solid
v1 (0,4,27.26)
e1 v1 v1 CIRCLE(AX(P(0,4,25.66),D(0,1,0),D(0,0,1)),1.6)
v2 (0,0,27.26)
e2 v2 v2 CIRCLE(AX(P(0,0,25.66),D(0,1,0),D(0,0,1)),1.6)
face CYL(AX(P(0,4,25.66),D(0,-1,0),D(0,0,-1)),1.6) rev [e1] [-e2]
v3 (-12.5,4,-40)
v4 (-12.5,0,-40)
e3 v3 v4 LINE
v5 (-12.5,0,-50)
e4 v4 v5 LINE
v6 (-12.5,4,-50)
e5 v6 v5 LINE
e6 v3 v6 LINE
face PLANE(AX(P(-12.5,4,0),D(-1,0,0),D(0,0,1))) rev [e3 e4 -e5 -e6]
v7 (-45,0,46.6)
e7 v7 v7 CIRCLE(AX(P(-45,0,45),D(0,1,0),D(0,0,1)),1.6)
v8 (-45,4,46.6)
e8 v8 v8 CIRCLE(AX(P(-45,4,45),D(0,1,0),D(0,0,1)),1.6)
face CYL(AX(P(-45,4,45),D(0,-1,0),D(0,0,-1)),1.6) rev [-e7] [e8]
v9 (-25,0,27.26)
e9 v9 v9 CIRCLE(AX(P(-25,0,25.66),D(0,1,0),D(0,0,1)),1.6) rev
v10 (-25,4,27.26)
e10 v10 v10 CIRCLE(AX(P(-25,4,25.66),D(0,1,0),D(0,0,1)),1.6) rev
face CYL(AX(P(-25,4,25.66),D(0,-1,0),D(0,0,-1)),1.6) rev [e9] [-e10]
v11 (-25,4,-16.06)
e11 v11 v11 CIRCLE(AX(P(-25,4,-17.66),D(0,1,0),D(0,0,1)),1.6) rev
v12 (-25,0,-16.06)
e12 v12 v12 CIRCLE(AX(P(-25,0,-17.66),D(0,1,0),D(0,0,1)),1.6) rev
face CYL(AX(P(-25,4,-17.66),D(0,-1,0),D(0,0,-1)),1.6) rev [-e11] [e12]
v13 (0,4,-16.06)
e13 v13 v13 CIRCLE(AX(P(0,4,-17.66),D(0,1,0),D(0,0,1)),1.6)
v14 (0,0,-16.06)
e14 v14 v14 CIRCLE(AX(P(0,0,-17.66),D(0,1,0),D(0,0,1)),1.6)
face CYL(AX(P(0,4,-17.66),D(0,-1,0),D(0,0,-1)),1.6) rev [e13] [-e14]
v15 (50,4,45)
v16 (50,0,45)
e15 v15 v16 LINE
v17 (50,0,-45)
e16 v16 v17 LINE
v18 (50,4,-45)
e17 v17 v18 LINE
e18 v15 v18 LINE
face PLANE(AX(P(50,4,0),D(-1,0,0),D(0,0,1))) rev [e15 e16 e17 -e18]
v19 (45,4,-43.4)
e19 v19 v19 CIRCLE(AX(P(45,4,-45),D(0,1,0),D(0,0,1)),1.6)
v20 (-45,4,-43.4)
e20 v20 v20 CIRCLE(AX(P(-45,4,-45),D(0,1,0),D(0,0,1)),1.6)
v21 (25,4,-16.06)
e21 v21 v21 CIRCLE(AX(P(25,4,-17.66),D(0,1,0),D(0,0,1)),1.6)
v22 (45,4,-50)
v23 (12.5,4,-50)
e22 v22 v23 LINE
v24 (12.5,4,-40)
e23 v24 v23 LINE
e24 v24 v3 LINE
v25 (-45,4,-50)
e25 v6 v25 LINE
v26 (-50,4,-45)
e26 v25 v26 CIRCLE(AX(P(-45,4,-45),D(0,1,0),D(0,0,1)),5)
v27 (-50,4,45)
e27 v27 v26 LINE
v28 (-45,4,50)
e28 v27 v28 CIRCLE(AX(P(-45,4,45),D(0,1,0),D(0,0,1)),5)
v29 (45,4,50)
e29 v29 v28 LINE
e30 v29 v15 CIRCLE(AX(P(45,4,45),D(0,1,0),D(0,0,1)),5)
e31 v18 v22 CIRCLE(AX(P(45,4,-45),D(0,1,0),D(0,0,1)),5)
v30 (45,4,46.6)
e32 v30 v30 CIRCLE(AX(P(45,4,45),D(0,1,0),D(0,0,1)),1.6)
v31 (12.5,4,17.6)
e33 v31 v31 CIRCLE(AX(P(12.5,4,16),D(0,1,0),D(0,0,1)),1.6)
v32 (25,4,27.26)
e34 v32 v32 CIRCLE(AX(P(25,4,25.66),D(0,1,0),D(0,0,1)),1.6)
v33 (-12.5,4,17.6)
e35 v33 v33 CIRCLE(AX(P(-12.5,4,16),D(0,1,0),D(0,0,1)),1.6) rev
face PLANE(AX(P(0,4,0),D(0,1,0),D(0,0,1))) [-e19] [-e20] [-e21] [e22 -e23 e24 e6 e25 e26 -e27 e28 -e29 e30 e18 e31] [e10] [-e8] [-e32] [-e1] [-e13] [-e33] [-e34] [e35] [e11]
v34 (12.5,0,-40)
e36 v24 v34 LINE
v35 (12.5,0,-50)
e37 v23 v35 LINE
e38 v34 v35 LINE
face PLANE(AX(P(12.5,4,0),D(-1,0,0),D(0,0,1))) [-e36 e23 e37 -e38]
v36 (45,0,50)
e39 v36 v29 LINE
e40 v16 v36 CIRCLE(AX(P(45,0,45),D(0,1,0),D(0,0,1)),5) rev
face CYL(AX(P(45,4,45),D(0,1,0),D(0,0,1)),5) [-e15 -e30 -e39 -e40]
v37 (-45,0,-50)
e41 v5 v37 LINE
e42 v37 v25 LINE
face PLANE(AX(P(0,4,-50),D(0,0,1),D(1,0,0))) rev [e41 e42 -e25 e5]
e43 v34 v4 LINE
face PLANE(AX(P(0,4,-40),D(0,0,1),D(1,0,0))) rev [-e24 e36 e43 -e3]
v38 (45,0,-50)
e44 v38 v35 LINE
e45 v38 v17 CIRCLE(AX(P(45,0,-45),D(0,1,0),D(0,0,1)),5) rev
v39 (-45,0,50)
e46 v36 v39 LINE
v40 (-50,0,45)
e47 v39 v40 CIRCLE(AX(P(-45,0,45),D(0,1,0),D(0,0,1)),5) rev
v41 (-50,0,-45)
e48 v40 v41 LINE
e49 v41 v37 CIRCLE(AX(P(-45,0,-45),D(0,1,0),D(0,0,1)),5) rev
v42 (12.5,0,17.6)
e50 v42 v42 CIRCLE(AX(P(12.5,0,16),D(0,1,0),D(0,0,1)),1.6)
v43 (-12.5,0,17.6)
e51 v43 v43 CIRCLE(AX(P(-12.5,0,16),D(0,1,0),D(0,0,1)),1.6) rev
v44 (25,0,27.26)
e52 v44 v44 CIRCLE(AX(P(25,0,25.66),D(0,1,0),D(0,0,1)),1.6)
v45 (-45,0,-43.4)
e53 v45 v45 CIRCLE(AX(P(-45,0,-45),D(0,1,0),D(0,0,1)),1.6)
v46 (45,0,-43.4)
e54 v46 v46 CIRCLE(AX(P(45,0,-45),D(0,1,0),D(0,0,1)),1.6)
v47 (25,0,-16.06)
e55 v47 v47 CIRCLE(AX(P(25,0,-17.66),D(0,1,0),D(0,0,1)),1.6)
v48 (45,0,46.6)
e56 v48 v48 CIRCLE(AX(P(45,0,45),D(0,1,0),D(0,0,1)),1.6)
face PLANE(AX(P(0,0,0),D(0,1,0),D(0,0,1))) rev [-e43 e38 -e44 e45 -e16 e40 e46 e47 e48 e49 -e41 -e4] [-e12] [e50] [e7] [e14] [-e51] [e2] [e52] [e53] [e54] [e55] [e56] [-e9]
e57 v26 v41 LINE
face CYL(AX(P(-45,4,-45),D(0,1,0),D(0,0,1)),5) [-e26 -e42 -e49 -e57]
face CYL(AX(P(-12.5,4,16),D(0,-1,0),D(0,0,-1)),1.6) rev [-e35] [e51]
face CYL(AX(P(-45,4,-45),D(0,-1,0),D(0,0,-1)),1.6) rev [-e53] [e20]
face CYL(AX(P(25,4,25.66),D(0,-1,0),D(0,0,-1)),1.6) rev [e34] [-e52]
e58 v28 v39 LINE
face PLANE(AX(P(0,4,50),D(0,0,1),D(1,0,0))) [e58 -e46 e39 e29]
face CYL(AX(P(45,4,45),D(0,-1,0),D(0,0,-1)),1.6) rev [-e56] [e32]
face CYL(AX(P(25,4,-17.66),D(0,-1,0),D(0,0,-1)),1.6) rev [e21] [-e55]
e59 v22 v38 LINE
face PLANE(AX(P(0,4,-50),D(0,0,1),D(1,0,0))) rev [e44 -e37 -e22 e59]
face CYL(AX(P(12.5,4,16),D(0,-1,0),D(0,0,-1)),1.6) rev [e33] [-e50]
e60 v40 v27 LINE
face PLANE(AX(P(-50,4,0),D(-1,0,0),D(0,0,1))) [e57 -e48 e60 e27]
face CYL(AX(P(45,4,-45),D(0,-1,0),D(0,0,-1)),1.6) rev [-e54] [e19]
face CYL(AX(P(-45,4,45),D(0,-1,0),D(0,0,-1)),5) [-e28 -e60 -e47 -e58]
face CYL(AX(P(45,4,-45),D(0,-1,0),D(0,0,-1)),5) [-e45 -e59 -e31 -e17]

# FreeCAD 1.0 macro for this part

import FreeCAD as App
import Part
import Sketcher
Q = App.Units.Quantity


def edges_at(feature, points):
    """Names of the edges that pass closest to the given points."""
    edges = feature.Shape.Edges
    near = lambda p: min(range(len(edges)), key=lambda i: edges[i].distToShape(Part.Vertex(*p))[0])
    return sorted({f"Edge{near(p) + 1}" for p in points})

doc = App.newDocument("Part")
body = doc.addObject("PartDesign::Body", "Body")

# Sketch on XZ plane
sketch1 = body.newObject("Sketcher::SketchObject", "Sketch")
sketch1.AttachmentSupport = (doc.getObject("XZ_Plane"), [""])
sketch1.MapMode = "FlatFace"
sketch1.addGeometry([
    Part.LineSegment(App.Vector(-50, 50, 0), App.Vector(50, 50, 0)),  # 0
    Part.LineSegment(App.Vector(50, 50, 0), App.Vector(50, -50, 0)),  # 1
    Part.LineSegment(App.Vector(50, -50, 0), App.Vector(12.5, -50, 0)),  # 2
    Part.LineSegment(App.Vector(12.5, -50, 0), App.Vector(12.5, -40, 0)),  # 3
    Part.LineSegment(App.Vector(12.5, -40, 0), App.Vector(-12.5, -40, 0)),  # 4
    Part.LineSegment(App.Vector(-12.5, -40, 0), App.Vector(-12.5, -50, 0)),  # 5
    Part.LineSegment(App.Vector(-12.5, -50, 0), App.Vector(-50, -50, 0)),  # 6
    Part.LineSegment(App.Vector(-50, -50, 0), App.Vector(-50, 50, 0)),  # 7
    Part.Circle(App.Vector(-45, 45, 0), App.Vector(0, 0, 1), 1.6),  # 8
    Part.Circle(App.Vector(-25, 25.66, 0), App.Vector(0, 0, 1), 1.6),  # 9
    Part.Circle(App.Vector(-12.5, 16, 0), App.Vector(0, 0, 1), 1.6),  # 10
    Part.Circle(App.Vector(0, 25.66, 0), App.Vector(0, 0, 1), 1.6),  # 11
    Part.Circle(App.Vector(45, 45, 0), App.Vector(0, 0, 1), 1.6),  # 12
    Part.Circle(App.Vector(25, 25.66, 0), App.Vector(0, 0, 1), 1.6),  # 13
    Part.Circle(App.Vector(12.5, 16, 0), App.Vector(0, 0, 1), 1.6),  # 14
    Part.Circle(App.Vector(-25, -17.66, 0), App.Vector(0, 0, 1), 1.6),  # 15
    Part.Circle(App.Vector(-45, -45, 0), App.Vector(0, 0, 1), 1.6),  # 16
    Part.Circle(App.Vector(0, -17.66, 0), App.Vector(0, 0, 1), 1.6),  # 17
    Part.Circle(App.Vector(25, -17.66, 0), App.Vector(0, 0, 1), 1.6),  # 18
    Part.Circle(App.Vector(45, -45, 0), App.Vector(0, 0, 1), 1.6),  # 19
], False)
sketch1.addConstraint([
    Sketcher.Constraint("Coincident", 0, 2, 1, 1),
    Sketcher.Constraint("Coincident", 1, 2, 2, 1),
    Sketcher.Constraint("Coincident", 2, 2, 3, 1),
    Sketcher.Constraint("Coincident", 3, 2, 4, 1),
    Sketcher.Constraint("Coincident", 4, 2, 5, 1),
    Sketcher.Constraint("Coincident", 5, 2, 6, 1),
    Sketcher.Constraint("Coincident", 6, 2, 7, 1),
    Sketcher.Constraint("Coincident", 7, 2, 0, 1),
    Sketcher.Constraint("Horizontal", 0),
    Sketcher.Constraint("Vertical", 1),
    Sketcher.Constraint("Horizontal", 2),
    Sketcher.Constraint("Vertical", 3),
    Sketcher.Constraint("Horizontal", 4),
    Sketcher.Constraint("Vertical", 5),
    Sketcher.Constraint("Horizontal", 6),
    Sketcher.Constraint("Vertical", 7),
    Sketcher.Constraint("Equal", 8, 9),
    Sketcher.Constraint("Equal", 9, 10),
    Sketcher.Constraint("Equal", 10, 11),
    Sketcher.Constraint("Equal", 11, 12),
    Sketcher.Constraint("Equal", 12, 13),
    Sketcher.Constraint("Equal", 13, 14),
    Sketcher.Constraint("Equal", 14, 15),
    Sketcher.Constraint("Equal", 15, 16),
    Sketcher.Constraint("Equal", 16, 17),
    Sketcher.Constraint("Equal", 17, 18),
    Sketcher.Constraint("Equal", 18, 19),
    Sketcher.Constraint("Symmetric", 12, 3, 16, 3, -1, 1),
    Sketcher.Constraint("Symmetric", 8, 3, 19, 3, -1, 1),
    Sketcher.Constraint("Symmetric", 0, 2, 6, 2, -1, 1),
    Sketcher.Constraint("Symmetric", 8, 3, 12, 3, -2),
    Sketcher.Constraint("Symmetric", 9, 3, 13, 3, -2),
    Sketcher.Constraint("Symmetric", 10, 3, 14, 3, -2),
    Sketcher.Constraint("Symmetric", 15, 3, 18, 3, -2),
    Sketcher.Constraint("Symmetric", 2, 2, 5, 2, -2),
    Sketcher.Constraint("PointOnObject", 11, 3, -2),
    Sketcher.Constraint("PointOnObject", 17, 3, -2),
    Sketcher.Constraint("Horizontal", 9, 3, 11, 3),
    Sketcher.Constraint("Horizontal", 15, 3, 17, 3),
    Sketcher.Constraint("Vertical", 9, 3, 15, 3),
    Sketcher.Constraint("Vertical", 14, 3, 2, 2),
    Sketcher.Constraint("Equal", 0, 1),
    Sketcher.Constraint("Diameter", 8, Q("3.2 mm")),
    Sketcher.Constraint("DistanceX", 0, 1, 0, 2, Q("100 mm")),
    Sketcher.Constraint("DistanceX", 4, 2, 4, 1, Q("25 mm")),
    Sketcher.Constraint("DistanceY", 3, 1, 3, 2, Q("10 mm")),
    Sketcher.Constraint("DistanceX", 8, 3, -1, 1, Q("45 mm")),
    Sketcher.Constraint("DistanceY", -1, 1, 8, 3, Q("45 mm")),
    Sketcher.Constraint("DistanceX", 9, 3, -1, 1, Q("25 mm")),
    Sketcher.Constraint("DistanceY", -1, 1, 10, 3, Q("16 mm")),
    Sketcher.Constraint("DistanceY", -1, 1, 9, 3, Q("25.66 mm")),
    Sketcher.Constraint("DistanceY", 15, 3, -1, 1, Q("17.66 mm")),
])
pad1 = body.newObject("PartDesign::Pad", "Pad")
pad1.Profile = sketch1
pad1.Length = 4
pad1.Reversed = True
doc.recompute()

fillet = body.newObject("PartDesign::Fillet", "Fillet")
fillet.Base = (pad1, edges_at(pad1, [
    (50, 2, -50),
    (50, 2, 50),
    (-50, 2, 50),
    (-50, 2, -50),
]))
fillet.Radius = 5

doc.recompute()
